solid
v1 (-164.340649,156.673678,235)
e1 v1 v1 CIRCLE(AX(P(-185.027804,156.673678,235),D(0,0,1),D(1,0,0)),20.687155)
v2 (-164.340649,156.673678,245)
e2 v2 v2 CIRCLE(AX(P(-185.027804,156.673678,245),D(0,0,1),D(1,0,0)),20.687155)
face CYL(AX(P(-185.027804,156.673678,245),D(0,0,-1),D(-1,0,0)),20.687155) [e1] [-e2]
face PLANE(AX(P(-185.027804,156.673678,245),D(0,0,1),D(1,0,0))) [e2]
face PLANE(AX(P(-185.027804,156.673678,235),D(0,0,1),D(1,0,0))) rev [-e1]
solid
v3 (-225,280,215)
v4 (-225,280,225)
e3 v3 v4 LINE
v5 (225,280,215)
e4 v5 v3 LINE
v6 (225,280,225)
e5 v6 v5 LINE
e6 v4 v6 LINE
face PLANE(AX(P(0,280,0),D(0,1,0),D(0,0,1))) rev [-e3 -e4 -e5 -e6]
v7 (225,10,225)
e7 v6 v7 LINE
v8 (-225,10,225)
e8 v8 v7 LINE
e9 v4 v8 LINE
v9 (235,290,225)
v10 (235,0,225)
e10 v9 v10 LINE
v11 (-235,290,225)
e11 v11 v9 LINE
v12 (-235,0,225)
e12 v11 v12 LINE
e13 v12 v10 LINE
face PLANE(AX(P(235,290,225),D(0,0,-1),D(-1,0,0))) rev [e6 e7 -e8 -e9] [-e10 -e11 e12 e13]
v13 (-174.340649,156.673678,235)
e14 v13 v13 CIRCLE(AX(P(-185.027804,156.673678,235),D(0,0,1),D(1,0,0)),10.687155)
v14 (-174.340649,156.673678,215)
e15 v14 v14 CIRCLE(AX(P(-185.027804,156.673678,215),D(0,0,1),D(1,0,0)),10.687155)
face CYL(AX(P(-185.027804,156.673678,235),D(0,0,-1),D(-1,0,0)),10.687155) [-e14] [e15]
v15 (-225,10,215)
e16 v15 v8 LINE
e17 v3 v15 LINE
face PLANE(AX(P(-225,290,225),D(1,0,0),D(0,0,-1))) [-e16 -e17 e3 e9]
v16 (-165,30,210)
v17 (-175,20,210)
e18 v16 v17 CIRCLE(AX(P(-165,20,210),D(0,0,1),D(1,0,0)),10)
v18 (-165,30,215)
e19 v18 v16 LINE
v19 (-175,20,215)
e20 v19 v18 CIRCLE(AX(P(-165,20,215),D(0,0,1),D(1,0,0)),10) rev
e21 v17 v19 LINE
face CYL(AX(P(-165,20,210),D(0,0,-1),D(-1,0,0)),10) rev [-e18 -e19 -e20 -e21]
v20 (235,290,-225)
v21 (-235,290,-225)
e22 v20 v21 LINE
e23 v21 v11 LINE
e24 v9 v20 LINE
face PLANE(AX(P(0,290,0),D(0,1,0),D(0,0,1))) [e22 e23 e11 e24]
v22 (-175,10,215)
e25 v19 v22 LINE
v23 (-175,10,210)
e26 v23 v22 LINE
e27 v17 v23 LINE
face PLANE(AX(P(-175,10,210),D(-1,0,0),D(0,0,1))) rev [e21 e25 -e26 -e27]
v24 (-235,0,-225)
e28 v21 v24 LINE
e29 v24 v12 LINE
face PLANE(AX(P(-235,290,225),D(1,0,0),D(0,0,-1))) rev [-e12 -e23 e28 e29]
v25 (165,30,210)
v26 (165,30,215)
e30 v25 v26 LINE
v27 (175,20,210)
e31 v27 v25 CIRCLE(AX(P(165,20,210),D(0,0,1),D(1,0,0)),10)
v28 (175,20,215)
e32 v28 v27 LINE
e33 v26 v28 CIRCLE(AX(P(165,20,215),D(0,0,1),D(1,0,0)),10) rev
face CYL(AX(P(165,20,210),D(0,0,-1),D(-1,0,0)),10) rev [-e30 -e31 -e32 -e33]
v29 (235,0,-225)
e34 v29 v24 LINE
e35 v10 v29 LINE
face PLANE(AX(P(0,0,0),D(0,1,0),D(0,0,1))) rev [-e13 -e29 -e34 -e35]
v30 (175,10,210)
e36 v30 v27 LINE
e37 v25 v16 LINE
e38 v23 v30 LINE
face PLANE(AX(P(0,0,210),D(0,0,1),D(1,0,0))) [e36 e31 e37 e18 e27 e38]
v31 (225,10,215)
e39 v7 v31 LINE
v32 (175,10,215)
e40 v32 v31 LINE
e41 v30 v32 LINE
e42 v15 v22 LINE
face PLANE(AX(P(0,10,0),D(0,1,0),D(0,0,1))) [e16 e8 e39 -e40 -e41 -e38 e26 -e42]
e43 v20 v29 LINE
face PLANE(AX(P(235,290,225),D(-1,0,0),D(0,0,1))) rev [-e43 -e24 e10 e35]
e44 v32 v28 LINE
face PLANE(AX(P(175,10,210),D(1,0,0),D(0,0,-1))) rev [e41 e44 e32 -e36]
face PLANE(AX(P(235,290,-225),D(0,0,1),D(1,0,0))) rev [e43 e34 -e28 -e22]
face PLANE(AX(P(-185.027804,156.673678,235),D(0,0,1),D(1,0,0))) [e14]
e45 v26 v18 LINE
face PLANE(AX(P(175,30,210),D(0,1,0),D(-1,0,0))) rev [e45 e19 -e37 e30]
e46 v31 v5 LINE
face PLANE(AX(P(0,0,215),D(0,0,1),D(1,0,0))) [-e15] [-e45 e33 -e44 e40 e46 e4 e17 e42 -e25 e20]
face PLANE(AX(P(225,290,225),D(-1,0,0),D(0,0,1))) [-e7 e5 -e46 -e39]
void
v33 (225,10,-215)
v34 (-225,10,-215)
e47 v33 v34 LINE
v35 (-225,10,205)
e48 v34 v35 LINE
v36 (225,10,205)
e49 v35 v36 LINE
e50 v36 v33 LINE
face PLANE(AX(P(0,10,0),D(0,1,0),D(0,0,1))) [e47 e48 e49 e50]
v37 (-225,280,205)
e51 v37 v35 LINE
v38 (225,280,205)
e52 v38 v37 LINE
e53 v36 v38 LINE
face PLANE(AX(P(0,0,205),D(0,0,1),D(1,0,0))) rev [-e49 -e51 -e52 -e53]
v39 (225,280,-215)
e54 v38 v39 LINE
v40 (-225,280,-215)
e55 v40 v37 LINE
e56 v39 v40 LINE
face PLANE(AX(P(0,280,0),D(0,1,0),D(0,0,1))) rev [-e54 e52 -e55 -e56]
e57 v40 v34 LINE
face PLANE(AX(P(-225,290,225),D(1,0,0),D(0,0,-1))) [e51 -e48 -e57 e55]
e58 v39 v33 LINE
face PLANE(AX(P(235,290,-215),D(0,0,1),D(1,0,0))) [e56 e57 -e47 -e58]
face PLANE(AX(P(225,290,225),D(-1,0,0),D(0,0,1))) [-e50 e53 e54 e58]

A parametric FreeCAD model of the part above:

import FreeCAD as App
import Part
import Sketcher
from FreeCAD import Vector
Q = App.Units.Quantity


def edges_at(feature, points):
    """Names of the edges that pass closest to the given points."""
    edges = feature.Shape.Edges
    near = lambda p: min(range(len(edges)), key=lambda i: edges[i].distToShape(Part.Vertex(*p))[0])
    return sorted({f"Edge{near(p) + 1}" for p in points})


def faces_at(feature, points):
    """Names of the faces that lie closest to the given points."""
    faces = feature.Shape.Faces
    near = lambda p: min(range(len(faces)), key=lambda i: faces[i].distToShape(Part.Vertex(*p))[0])
    return sorted({f"Face{near(p) + 1}" for p in points})

doc = App.newDocument("Part")
body = doc.addObject("PartDesign::Body", "Body")

# Sketch on XZ plane
sketch1 = doc.addObject("Sketcher::SketchObject", "Sketch")
body.addObject(sketch1)
sketch1.AttachmentSupport = (doc.XZ_Plane, [""])
sketch1.MapMode = "FlatFace"
sketch1.addGeometry(Part.LineSegment(Vector(-235, -225, 0), Vector(-235, 225, 0)), False)
sketch1.addGeometry(Part.LineSegment(Vector(-235, 225, 0), Vector(235, 225, 0)), False)
sketch1.addGeometry(Part.LineSegment(Vector(235, 225, 0), Vector(235, -225, 0)), False)
sketch1.addGeometry(Part.LineSegment(Vector(235, -225, 0), Vector(-235, -225, 0)), False)
sketch1.addConstraint(Sketcher.Constraint("Coincident", 0, 2, 1, 1))
sketch1.addConstraint(Sketcher.Constraint("Coincident", 1, 2, 2, 1))
sketch1.addConstraint(Sketcher.Constraint("Coincident", 2, 2, 3, 1))
sketch1.addConstraint(Sketcher.Constraint("Coincident", 3, 2, 0, 1))
sketch1.addConstraint(Sketcher.Constraint("Vertical", 0))
sketch1.addConstraint(Sketcher.Constraint("Horizontal", 1))
sketch1.addConstraint(Sketcher.Constraint("Vertical", 2))
sketch1.addConstraint(Sketcher.Constraint("Horizontal", 3))
sketch1.addConstraint(Sketcher.Constraint("Symmetric", 0, 2, 2, 2, -1, 1))
sketch1.addConstraint(Sketcher.Constraint("DistanceX", 1, 1, 1, 2, Q("470 mm")))
sketch1.addConstraint(Sketcher.Constraint("DistanceY", 0, 1, 0, 2, Q("450 mm")))
pad1 = doc.addObject("PartDesign::Pad", "Pad")
body.addObject(pad1)
pad1.Profile = sketch1
pad1.Length = 290
pad1.Reversed = True
doc.recompute()

thickness = doc.addObject("PartDesign::Thickness", "Thickness")
body.addObject(thickness)
thickness.Base = (pad1, faces_at(pad1, [(0, 145, 225)]))
thickness.Value = 10
thickness.Reversed = True
thickness.Join = "Intersection"

# Sketch on XY plane
sketch2 = doc.addObject("Sketcher::SketchObject", "Sketch001")
body.addObject(sketch2)
sketch2.AttachmentSupport = (doc.XY_Plane, [""])
sketch2.MapMode = "FlatFace"
sketch2.AttachmentOffset = App.Placement(Vector(0, 0, 205), App.Rotation())
sketch2.addGeometry(Part.LineSegment(Vector(-225, 280, 0), Vector(-225, 10, 0)), False)
sketch2.addGeometry(Part.LineSegment(Vector(-225, 10, 0), Vector(225, 10, 0)), False)
sketch2.addGeometry(Part.LineSegment(Vector(225, 10, 0), Vector(225, 280, 0)), False)
sketch2.addGeometry(Part.LineSegment(Vector(225, 280, 0), Vector(-225, 280, 0)), False)
sketch2.addConstraint(Sketcher.Constraint("Coincident", 0, 2, 1, 1))
sketch2.addConstraint(Sketcher.Constraint("Coincident", 1, 2, 2, 1))
sketch2.addConstraint(Sketcher.Constraint("Coincident", 2, 2, 3, 1))
sketch2.addConstraint(Sketcher.Constraint("Coincident", 3, 2, 0, 1))
sketch2.addConstraint(Sketcher.Constraint("Vertical", 0))
sketch2.addConstraint(Sketcher.Constraint("Horizontal", 1))
sketch2.addConstraint(Sketcher.Constraint("Vertical", 2))
sketch2.addConstraint(Sketcher.Constraint("Horizontal", 3))
sketch2.addConstraint(Sketcher.Constraint("DistanceX", 1, 1, 1, 2, Q("450 mm")))
sketch2.addConstraint(Sketcher.Constraint("DistanceY", 0, 2, 0, 1, Q("270 mm")))
sketch2.addConstraint(Sketcher.Constraint("DistanceX", 0, 2, -1, 1, Q("225 mm")))
sketch2.addConstraint(Sketcher.Constraint("DistanceY", -1, 1, 0, 2, Q("10 mm")))
pad2 = doc.addObject("PartDesign::Pad", "Pad001")
body.addObject(pad2)
pad2.Profile = sketch2
pad2.Length = 10

# Sketch on XY plane
sketch3 = doc.addObject("Sketcher::SketchObject", "Sketch002")
body.addObject(sketch3)
sketch3.AttachmentSupport = (doc.XY_Plane, [""])
sketch3.MapMode = "FlatFace"
sketch3.AttachmentOffset = App.Placement(Vector(0, 0, 215), App.Rotation())
sketch3.addGeometry(Part.LineSegment(Vector(-175, 30, 0), Vector(-175, 10, 0)), False)
sketch3.addGeometry(Part.LineSegment(Vector(-175, 10, 0), Vector(175, 10, 0)), False)
sketch3.addGeometry(Part.LineSegment(Vector(175, 10, 0), Vector(175, 30, 0)), False)
sketch3.addGeometry(Part.LineSegment(Vector(175, 30, 0), Vector(-175, 30, 0)), False)
sketch3.addConstraint(Sketcher.Constraint("Coincident", 0, 2, 1, 1))
sketch3.addConstraint(Sketcher.Constraint("Coincident", 1, 2, 2, 1))
sketch3.addConstraint(Sketcher.Constraint("Coincident", 2, 2, 3, 1))
sketch3.addConstraint(Sketcher.Constraint("Coincident", 3, 2, 0, 1))
sketch3.addConstraint(Sketcher.Constraint("Vertical", 0))
sketch3.addConstraint(Sketcher.Constraint("Horizontal", 1))
sketch3.addConstraint(Sketcher.Constraint("Vertical", 2))
sketch3.addConstraint(Sketcher.Constraint("Horizontal", 3))
sketch3.addConstraint(Sketcher.Constraint("DistanceX", 1, 1, 1, 2, Q("350 mm")))
sketch3.addConstraint(Sketcher.Constraint("DistanceY", 0, 2, 0, 1, Q("20 mm")))
sketch3.addConstraint(Sketcher.Constraint("DistanceX", 0, 2, -1, 1, Q("175 mm")))
sketch3.addConstraint(Sketcher.Constraint("DistanceY", -1, 1, 0, 2, Q("10 mm")))
pocket1 = doc.addObject("PartDesign::Pocket", "Pocket")
body.addObject(pocket1)
pocket1.Profile = sketch3
pocket1.Length = 5
doc.recompute()

fillet = doc.addObject("PartDesign::Fillet", "Fillet")
body.addObject(fillet)
fillet.Base = (pocket1, edges_at(pocket1, [(175, 30, 212.5), (-175, 30, 212.5)]))
fillet.Radius = 10

# Sketch on XY plane
sketch4 = doc.addObject("Sketcher::SketchObject", "Sketch003")
body.addObject(sketch4)
sketch4.AttachmentSupport = (doc.XY_Plane, [""])
sketch4.MapMode = "FlatFace"
sketch4.AttachmentOffset = App.Placement(Vector(0, 0, 215), App.Rotation())
sketch4.addGeometry(Part.Circle(Vector(-185.027804, 156.673678, 0), Vector(0, 0, 1), 10.687155), False)
sketch4.addConstraint(Sketcher.Constraint("Diameter", 0, Q("21.374311 mm")))
sketch4.addConstraint(Sketcher.Constraint("DistanceY", -1, 1, 0, 3, Q("156.673678 mm")))
sketch4.addConstraint(Sketcher.Constraint("DistanceX", 0, 3, -1, 1, Q("185.027804 mm")))
pad3 = doc.addObject("PartDesign::Pad", "Pad002")
body.addObject(pad3)
pad3.Profile = sketch4
pad3.Length = 20
body2 = doc.addObject("PartDesign::Body", "Body001")

# Sketch on XY plane
sketch5 = doc.addObject("Sketcher::SketchObject", "Sketch004")
body2.addObject(sketch5)
sketch5.AttachmentSupport = (doc.getObject("XY_Plane001"), [""])
sketch5.MapMode = "FlatFace"
sketch5.AttachmentOffset = App.Placement(Vector(0, 0, 235), App.Rotation())
sketch5.addGeometry(Part.Circle(Vector(-185.027804, 156.673678, 0), Vector(0, 0, 1), 20.687155), False)
sketch5.addConstraint(Sketcher.Constraint("Diameter", 0, Q("41.374311 mm")))
sketch5.addConstraint(Sketcher.Constraint("DistanceY", -1, 1, 0, 3, Q("156.673678 mm")))
sketch5.addConstraint(Sketcher.Constraint("DistanceX", 0, 3, -1, 1, Q("185.027804 mm")))
pad4 = doc.addObject("PartDesign::Pad", "Pad003")
body2.addObject(pad4)
pad4.Profile = sketch5
pad4.Length = 10

doc.recompute()
